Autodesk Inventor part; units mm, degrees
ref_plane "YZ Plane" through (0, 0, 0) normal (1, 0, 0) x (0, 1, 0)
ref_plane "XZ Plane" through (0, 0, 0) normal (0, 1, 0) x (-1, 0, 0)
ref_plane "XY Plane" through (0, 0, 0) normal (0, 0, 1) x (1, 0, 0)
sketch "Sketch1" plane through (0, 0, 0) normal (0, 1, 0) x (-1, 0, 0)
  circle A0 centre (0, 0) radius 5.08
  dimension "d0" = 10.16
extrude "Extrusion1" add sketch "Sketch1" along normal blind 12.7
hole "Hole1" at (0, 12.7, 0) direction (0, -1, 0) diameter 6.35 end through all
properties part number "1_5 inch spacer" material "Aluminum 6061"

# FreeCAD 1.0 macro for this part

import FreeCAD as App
import Part
import Sketcher
Q = App.Units.Quantity

doc = App.newDocument("Part")
body = doc.addObject("PartDesign::Body", "Body")

sketch1 = body.newObject("Sketcher::SketchObject", "Sketch")
sketch1.AttachmentSupport = (doc.getObject("XZ_Plane"), [""])
sketch1.MapMode = "FlatFace"
sketch1.addGeometry(Part.Circle(App.Vector(0, 0, 0), App.Vector(0, 0, 1), 5.08), False)
sketch1.addConstraint([
    Sketcher.Constraint("Coincident", 0, 3, -1, 1),
    Sketcher.Constraint("Diameter", 0, Q("0.4 in")),
])
pad1 = body.newObject("PartDesign::Pad", "Pad")
pad1.Profile = sketch1
pad1.Length = Q("0.5 in")
pad1.Reversed = True

sketch2 = body.newObject("Sketcher::SketchObject", "Sketch001")
sketch2.AttachmentSupport = (doc.getObject("XZ_Plane"), [""])
sketch2.MapMode = "FlatFace"
sketch2.AttachmentOffset = App.Placement(App.Vector(0, 0, -0.5 * 25.4), App.Rotation())
sketch2.addGeometry(Part.Circle(App.Vector(0, 0, 0), App.Vector(0, 0, 1), 3.175), False)
sketch2.addConstraint([
    Sketcher.Constraint("Coincident", 0, 3, -1, 1),
    Sketcher.Constraint("Diameter", 0, Q("0.25 in")),
])
doc.recompute()
hole = body.newObject("PartDesign::Hole", "Hole")
hole.Profile = sketch2
hole.ThreadType = "None"
hole.Diameter = Q("0.25 in")
hole.DepthType = "ThroughAll"
hole.Reversed = True

doc.recompute()
